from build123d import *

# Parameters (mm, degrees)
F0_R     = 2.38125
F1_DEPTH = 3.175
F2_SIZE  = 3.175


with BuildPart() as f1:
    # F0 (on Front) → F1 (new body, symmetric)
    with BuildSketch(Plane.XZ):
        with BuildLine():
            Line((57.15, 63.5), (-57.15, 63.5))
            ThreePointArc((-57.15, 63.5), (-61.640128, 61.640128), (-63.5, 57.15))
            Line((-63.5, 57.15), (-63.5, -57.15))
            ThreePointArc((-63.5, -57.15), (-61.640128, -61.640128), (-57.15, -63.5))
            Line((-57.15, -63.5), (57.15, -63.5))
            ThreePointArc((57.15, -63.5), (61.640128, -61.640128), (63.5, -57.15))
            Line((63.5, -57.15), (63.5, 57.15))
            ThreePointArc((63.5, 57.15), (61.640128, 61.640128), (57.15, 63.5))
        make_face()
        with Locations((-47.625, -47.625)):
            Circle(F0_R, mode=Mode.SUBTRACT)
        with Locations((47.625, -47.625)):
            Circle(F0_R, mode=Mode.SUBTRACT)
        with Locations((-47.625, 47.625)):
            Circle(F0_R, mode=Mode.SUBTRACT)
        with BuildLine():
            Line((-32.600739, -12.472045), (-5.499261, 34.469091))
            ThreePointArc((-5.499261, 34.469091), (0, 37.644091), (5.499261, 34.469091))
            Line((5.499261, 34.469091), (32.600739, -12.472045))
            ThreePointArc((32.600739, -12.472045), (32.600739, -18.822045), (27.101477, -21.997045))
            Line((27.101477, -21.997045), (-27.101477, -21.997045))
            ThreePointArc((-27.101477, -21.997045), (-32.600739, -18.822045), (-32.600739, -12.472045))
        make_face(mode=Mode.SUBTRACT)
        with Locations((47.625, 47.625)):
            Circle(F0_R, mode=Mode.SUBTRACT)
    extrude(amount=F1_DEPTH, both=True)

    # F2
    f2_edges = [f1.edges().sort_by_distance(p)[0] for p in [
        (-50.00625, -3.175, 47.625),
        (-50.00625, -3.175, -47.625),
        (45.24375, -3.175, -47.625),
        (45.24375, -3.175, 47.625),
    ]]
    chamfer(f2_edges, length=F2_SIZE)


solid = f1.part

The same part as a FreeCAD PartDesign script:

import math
import FreeCAD as App
import Part
import Sketcher
from FreeCAD import Vector
Q = App.Units.Quantity


def edges_at(feature, points):
    """Names of the edges that pass closest to the given points."""
    edges = feature.Shape.Edges
    near = lambda p: min(range(len(edges)), key=lambda i: edges[i].distToShape(Part.Vertex(*p))[0])
    return sorted({f"Edge{near(p) + 1}" for p in points})

doc = App.newDocument("Part")
body = doc.addObject("PartDesign::Body", "Body")

sketch1 = body.newObject("Sketcher::SketchObject", "Sketch")
sketch1.AttachmentSupport = (doc.getObject("XZ_Plane"), [""])
sketch1.MapMode = "FlatFace"
sketch1.addGeometry([
    Part.LineSegment(Vector(57.1, 63.5, 0), Vector(-57.1, 63.5, 0)),
    Part.ArcOfCircle(Part.Circle(Vector(-57.1, 57.1, 0), Vector(0, 0, 1), 6.4), math.radians(90), math.radians(180)),
    Part.LineSegment(Vector(-63.5, 57.1, 0), Vector(-63.5, -57.1, 0)),
    Part.ArcOfCircle(Part.Circle(Vector(-57.1, -57.1, 0), Vector(0, 0, 1), 6.4), math.radians(-180), math.radians(-90)),
    Part.LineSegment(Vector(-57.1, -63.5, 0), Vector(57.1, -63.5, 0)),
    Part.ArcOfCircle(Part.Circle(Vector(57.1, -57.1, 0), Vector(0, 0, 1), 6.4), math.radians(-90), math.radians(0)),
    Part.LineSegment(Vector(63.5, -57.1, 0), Vector(63.5, 57.1, 0)),
    Part.ArcOfCircle(Part.Circle(Vector(57.1, 57.1, 0), Vector(0, 0, 1), 6.4), math.radians(0), math.radians(90)),
    Part.Circle(Vector(-47.6, -47.6, 0), Vector(0, 0, 1), 2.4),
    Part.Circle(Vector(47.6, -47.6, 0), Vector(0, 0, 1), 2.4),
    Part.ArcOfCircle(Part.Circle(Vector(-27.1, -15.6, 0), Vector(0, 0, 1), 6.3), math.radians(150), math.radians(270)),
    Part.LineSegment(Vector(-32.6, -12.5, 0), Vector(-5.5, 34.5, 0)),
    Part.ArcOfCircle(Part.Circle(Vector(0, 31.3, 0), Vector(0, 0, 1), 6.3), math.radians(30), math.radians(150)),
    Part.LineSegment(Vector(5.5, 34.5, 0), Vector(32.6, -12.5, 0)),
    Part.ArcOfCircle(Part.Circle(Vector(27.1, -15.6, 0), Vector(0, 0, 1), 6.3), math.radians(-90), math.radians(30)),
    Part.LineSegment(Vector(27.1, -22, 0), Vector(-27.1, -22, 0)),
    Part.Circle(Vector(-47.6, 47.6, 0), Vector(0, 0, 1), 2.4),
    Part.Circle(Vector(47.6, 47.6, 0), Vector(0, 0, 1), 2.4),
], False)
sketch1.addConstraint([
    Sketcher.Constraint("Tangent", 0, 2, 1, 1),
    Sketcher.Constraint("Tangent", 1, 2, 2, 1),
    Sketcher.Constraint("Tangent", 2, 2, 3, 1),
    Sketcher.Constraint("Tangent", 3, 2, 4, 1),
    Sketcher.Constraint("Tangent", 4, 2, 5, 1),
    Sketcher.Constraint("Tangent", 5, 2, 6, 1),
    Sketcher.Constraint("Tangent", 6, 2, 7, 1),
    Sketcher.Constraint("Tangent", 7, 2, 0, 1),
    Sketcher.Constraint("Tangent", 10, 1, 11, 1),
    Sketcher.Constraint("Tangent", 11, 2, 12, 2),
    Sketcher.Constraint("Tangent", 12, 1, 13, 1),
    Sketcher.Constraint("Tangent", 13, 2, 14, 2),
    Sketcher.Constraint("Tangent", 14, 1, 15, 1),
    Sketcher.Constraint("Tangent", 15, 2, 10, 2),
    Sketcher.Constraint("Horizontal", 0),
    Sketcher.Constraint("Vertical", 2),
    Sketcher.Constraint("Horizontal", 4),
    Sketcher.Constraint("Vertical", 6),
    Sketcher.Constraint("Horizontal", 15),
    Sketcher.Constraint("Equal", 1, 3),
    Sketcher.Constraint("Equal", 3, 5),
    Sketcher.Constraint("Equal", 5, 7),
    Sketcher.Constraint("Equal", 8, 9),
    Sketcher.Constraint("Equal", 7, 10),
    Sketcher.Constraint("Equal", 10, 12),
    Sketcher.Constraint("Equal", 12, 14),
    Sketcher.Constraint("Equal", 9, 16),
    Sketcher.Constraint("Equal", 16, 17),
    Sketcher.Constraint("Symmetric", 1, 3, 5, 3, -1, 1),
    Sketcher.Constraint("Symmetric", 9, 3, 16, 3, -1, 1),
    Sketcher.Constraint("Symmetric", 8, 3, 17, 3, -1, 1),
    Sketcher.Constraint("Symmetric", 8, 3, 9, 3, -2),
    Sketcher.Constraint("Symmetric", 11, 2, 12, 1, -2),
    Sketcher.Constraint("Equal", 4, 2),
    Sketcher.Constraint("Radius", 1, Q("0.25 in")),
    Sketcher.Constraint("Diameter", 8, Q("0.1875 in")),
    Sketcher.Constraint("DistanceX", 0, 2, 0, 1, Q("4.5 in")),
    Sketcher.Constraint("Angle", 11, Q("60 deg")),
    Sketcher.Constraint("DistanceX", 8, 3, 9, 3, Q("3.75 in")),
    Sketcher.Constraint("DistanceY", 8, 3, 16, 3, Q("3.75 in")),
    Sketcher.Constraint("DistanceX", 15, 2, 15, 1, 54.202954),
    Sketcher.Constraint("DistanceY", -1, 1, 12, 3, 31.294092),
])
pad1 = body.newObject("PartDesign::Pad", "Pad")
pad1.Profile = sketch1
pad1.Length = Q("0.25 in")
pad1.Midplane = True
doc.recompute()

chamfer = body.newObject("PartDesign::Chamfer", "Chamfer")
chamfer.Base = (pad1, edges_at(pad1, [
    (-50.006, -3.175, 47.625),
    (-50.006, -3.175, -47.625),
    (45.244, -3.175, -47.625),
    (45.244, -3.175, 47.625),
]))
chamfer.Size = Q("0.125 in")

doc.recompute()
